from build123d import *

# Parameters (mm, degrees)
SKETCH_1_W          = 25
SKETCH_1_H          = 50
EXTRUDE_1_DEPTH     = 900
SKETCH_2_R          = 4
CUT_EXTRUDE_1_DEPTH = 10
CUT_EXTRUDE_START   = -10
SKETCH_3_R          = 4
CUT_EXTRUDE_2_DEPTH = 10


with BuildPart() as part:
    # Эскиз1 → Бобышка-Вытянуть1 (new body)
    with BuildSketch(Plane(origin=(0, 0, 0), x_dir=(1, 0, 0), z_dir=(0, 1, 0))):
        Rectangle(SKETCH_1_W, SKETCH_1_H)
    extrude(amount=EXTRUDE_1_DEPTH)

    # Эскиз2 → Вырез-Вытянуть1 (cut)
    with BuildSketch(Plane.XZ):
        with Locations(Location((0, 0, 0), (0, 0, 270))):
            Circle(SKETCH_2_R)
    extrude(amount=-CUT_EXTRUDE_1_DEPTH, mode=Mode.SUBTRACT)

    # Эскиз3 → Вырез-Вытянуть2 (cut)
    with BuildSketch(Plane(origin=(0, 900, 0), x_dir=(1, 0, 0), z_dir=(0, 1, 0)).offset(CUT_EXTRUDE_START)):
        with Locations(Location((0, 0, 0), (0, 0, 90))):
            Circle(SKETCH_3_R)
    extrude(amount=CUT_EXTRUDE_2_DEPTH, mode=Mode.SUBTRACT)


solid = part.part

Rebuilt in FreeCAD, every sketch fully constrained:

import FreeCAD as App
import Part
import Sketcher

V = App.Vector


def add_polygon(sketch, points):
    """Adds a closed chain of lines whose ends are joined by coincident constraints."""
    first, n = sketch.GeometryCount, len(points)
    for a, b in zip(points, points[1:] + points[:1]):
        sketch.addGeometry(Part.LineSegment(App.Vector(*a, 0), App.Vector(*b, 0)), False)
    for i in range(n):
        sketch.addConstraint(Sketcher.Constraint("Coincident", first + i, 2, first + (i + 1) % n, 1))

doc = App.newDocument("Part")
params = doc.addObject("Spreadsheet::Sheet", "Params")
for row, (alias, value) in enumerate([
    ("sketch1_width", "25 mm"),
    ("sketch1_height", "50 mm"),
    ("pad1_length", "900 mm"),
    ("sketch2_diameter", "8 mm"),
    ("pocket1_length", "10 mm"),
    ("sketch3_diameter", "8 mm"),
    ("pocket2_length", "10 mm"),
], start=1):
    params.set(f"A{row}", alias)
    params.set(f"B{row}", "=" + value)
    params.setAlias(f"B{row}", alias)

body = doc.addObject("PartDesign::Body", "Body")

sketch1 = body.newObject("Sketcher::SketchObject", "Sketch")
sketch1.AttachmentSupport = (doc.getObject("XZ_Plane"), [""])
sketch1.MapMode = "FlatFace"
add_polygon(sketch1, [(-12.5, -25), (-12.5, 25), (12.5, 25), (12.5, -25)])
sketch1.addConstraint(Sketcher.Constraint("Vertical", 0))
sketch1.addConstraint(Sketcher.Constraint("Horizontal", 1))
sketch1.addConstraint(Sketcher.Constraint("Vertical", 2))
sketch1.addConstraint(Sketcher.Constraint("Horizontal", 3))
sketch1.addConstraint(Sketcher.Constraint("Symmetric", 0, 2, 2, 2, -1, 1))
sketch1.addConstraint(Sketcher.Constraint("DistanceX", 1, 1, 1, 2, 25.0))
sketch1.addConstraint(Sketcher.Constraint("DistanceY", 0, 1, 0, 2, 50.0))
sketch1.setExpression("Constraints[9]", "Params.sketch1_width")
sketch1.setExpression("Constraints[10]", "Params.sketch1_height")
pad1 = body.newObject("PartDesign::Pad", "Pad")
pad1.Profile = sketch1
pad1.setExpression("Length", "Params.pad1_length")
pad1.Reversed = True

sketch2 = body.newObject("Sketcher::SketchObject", "Sketch001")
sketch2.AttachmentSupport = (doc.getObject("XZ_Plane"), [""])
sketch2.MapMode = "FlatFace"
sketch2.addGeometry(Part.Circle(V(0, 0, 0), V(0, 0, 1), 4), False)
sketch2.addConstraint(Sketcher.Constraint("Coincident", 0, 3, -1, 1))
sketch2.addConstraint(Sketcher.Constraint("Diameter", 0, 8.0))
sketch2.setExpression("Constraints[1]", "Params.sketch2_diameter")
pocket1 = body.newObject("PartDesign::Pocket", "Pocket")
pocket1.Profile = sketch2
pocket1.setExpression("Length", "Params.pocket1_length")

sketch3 = body.newObject("Sketcher::SketchObject", "Sketch002")
sketch3.AttachmentSupport = (doc.getObject("XZ_Plane"), [""])
sketch3.MapMode = "FlatFace"
sketch3.AttachmentOffset = App.Placement(V(0, 0, -890), App.Rotation())
sketch3.addGeometry(Part.Circle(V(0, 0, 0), V(0, 0, 1), 4), False)
sketch3.addConstraint(Sketcher.Constraint("Coincident", 0, 3, -1, 1))
sketch3.addConstraint(Sketcher.Constraint("Diameter", 0, 8.0))
sketch3.setExpression("Constraints[1]", "Params.sketch3_diameter")
pocket2 = body.newObject("PartDesign::Pocket", "Pocket001")
pocket2.Profile = sketch3
pocket2.setExpression("Length", "Params.pocket2_length")

doc.recompute()
